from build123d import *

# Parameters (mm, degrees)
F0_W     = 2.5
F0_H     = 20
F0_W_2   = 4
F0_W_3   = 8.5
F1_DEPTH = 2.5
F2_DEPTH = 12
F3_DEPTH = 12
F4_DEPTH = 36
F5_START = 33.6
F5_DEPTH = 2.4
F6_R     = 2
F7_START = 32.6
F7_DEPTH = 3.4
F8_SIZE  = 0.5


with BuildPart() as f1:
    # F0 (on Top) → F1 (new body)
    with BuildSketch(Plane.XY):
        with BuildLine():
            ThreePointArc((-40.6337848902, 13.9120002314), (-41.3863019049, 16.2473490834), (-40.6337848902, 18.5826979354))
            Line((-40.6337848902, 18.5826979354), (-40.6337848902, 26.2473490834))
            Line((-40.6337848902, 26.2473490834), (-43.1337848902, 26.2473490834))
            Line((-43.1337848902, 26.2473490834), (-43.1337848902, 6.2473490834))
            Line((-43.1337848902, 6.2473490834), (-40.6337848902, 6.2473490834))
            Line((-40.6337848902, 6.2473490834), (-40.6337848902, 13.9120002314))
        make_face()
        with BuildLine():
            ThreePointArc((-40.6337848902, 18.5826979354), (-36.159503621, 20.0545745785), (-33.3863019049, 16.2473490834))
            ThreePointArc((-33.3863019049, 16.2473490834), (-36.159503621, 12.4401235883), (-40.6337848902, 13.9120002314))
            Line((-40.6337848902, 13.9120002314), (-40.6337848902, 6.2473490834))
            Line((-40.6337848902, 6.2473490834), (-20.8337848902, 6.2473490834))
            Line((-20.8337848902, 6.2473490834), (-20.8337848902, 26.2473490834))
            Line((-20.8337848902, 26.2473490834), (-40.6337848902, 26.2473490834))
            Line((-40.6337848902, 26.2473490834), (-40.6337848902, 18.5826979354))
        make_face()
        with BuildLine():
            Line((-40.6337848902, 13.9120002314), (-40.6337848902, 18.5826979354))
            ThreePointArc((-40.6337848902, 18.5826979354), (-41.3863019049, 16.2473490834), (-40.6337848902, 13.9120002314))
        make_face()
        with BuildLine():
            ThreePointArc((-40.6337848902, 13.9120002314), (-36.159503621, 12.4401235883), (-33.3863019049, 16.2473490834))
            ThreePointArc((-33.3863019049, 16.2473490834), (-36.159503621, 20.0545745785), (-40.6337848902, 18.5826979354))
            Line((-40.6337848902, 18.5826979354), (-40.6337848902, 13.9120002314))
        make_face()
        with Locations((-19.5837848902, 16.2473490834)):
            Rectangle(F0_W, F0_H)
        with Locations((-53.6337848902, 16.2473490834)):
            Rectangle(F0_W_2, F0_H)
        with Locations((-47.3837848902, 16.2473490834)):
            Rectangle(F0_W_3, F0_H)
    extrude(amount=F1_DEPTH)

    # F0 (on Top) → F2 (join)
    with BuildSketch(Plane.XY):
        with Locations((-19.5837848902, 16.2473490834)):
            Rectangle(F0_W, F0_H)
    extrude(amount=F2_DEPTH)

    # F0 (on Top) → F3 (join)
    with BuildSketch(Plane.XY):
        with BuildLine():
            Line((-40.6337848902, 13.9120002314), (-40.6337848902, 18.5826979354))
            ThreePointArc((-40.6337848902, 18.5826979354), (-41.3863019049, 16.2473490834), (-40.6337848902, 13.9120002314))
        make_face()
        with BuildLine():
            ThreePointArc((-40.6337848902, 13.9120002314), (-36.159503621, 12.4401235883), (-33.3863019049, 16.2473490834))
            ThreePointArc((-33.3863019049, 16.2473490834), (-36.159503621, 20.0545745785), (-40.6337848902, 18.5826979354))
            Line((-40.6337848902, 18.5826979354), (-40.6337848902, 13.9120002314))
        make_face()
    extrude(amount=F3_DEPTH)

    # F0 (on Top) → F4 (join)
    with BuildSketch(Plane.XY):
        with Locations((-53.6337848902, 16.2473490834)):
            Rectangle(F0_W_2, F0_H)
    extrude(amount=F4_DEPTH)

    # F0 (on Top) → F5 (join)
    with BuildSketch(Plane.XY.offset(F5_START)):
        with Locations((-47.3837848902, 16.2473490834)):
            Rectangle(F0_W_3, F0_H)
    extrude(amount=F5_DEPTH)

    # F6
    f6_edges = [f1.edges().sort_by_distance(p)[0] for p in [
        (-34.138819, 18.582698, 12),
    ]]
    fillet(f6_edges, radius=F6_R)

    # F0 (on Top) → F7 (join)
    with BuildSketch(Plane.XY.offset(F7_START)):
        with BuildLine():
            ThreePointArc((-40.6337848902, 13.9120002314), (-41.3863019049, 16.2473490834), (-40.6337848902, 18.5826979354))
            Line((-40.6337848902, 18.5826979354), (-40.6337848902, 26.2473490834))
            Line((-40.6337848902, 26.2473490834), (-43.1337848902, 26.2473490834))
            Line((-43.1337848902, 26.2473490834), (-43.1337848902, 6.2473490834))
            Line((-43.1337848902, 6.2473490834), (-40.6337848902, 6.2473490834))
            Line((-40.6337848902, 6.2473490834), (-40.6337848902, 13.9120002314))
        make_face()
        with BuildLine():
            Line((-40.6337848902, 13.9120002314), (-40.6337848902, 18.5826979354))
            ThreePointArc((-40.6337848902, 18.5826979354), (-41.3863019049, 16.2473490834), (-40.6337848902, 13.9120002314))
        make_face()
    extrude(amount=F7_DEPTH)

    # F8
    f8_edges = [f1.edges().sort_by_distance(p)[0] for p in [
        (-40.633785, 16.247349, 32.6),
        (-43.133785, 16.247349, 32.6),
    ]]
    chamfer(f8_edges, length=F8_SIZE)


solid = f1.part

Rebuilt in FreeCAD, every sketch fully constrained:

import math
import FreeCAD as App
import Part
import Sketcher

V = App.Vector
Q = App.Units.Quantity


def edges_at(feature, points):
    """Names of the edges that pass closest to the given points."""
    edges = feature.Shape.Edges
    near = lambda p: min(range(len(edges)), key=lambda i: edges[i].distToShape(Part.Vertex(*p))[0])
    return sorted({f"Edge{near(p) + 1}" for p in points})


def add_polygon(sketch, points):
    """Adds a closed chain of lines whose ends are joined by coincident constraints."""
    first, n = sketch.GeometryCount, len(points)
    for a, b in zip(points, points[1:] + points[:1]):
        sketch.addGeometry(Part.LineSegment(App.Vector(*a, 0), App.Vector(*b, 0)), False)
    for i in range(n):
        sketch.addConstraint(Sketcher.Constraint("Coincident", first + i, 2, first + (i + 1) % n, 1))

doc = App.newDocument("Part")
body = doc.addObject("PartDesign::Body", "Body")

# Sketch on XY plane
sketch1 = doc.addObject("Sketcher::SketchObject", "Sketch")
body.addObject(sketch1)
sketch1.AttachmentSupport = (doc.XY_Plane, [""])
sketch1.MapMode = "FlatFace"
add_polygon(sketch1, [(-18, 6), (-18, 26), (-56, 26), (-56, 6)])  # lines 0-3
sketch1.addConstraint([
    Sketcher.Constraint("Vertical", 0),
    Sketcher.Constraint("Horizontal", 1),
    Sketcher.Constraint("Vertical", 2),
    Sketcher.Constraint("Horizontal", 3),
    Sketcher.Constraint("DistanceY", 0, 1, 0, 2, Q("20 mm")),
    Sketcher.Constraint("DistanceX", 1, 2, 1, 1, Q("37.3 mm")),
    Sketcher.Constraint("DistanceY", -1, 1, 0, 2, Q("26.247349 mm")),
    Sketcher.Constraint("DistanceX", 0, 2, -1, 1, Q("18.333785 mm")),
])
pad1 = doc.addObject("PartDesign::Pad", "Pad")
body.addObject(pad1)
pad1.Profile = sketch1
pad1.Length = 2.5

# Sketch on XY plane
sketch2 = doc.addObject("Sketcher::SketchObject", "Sketch001")
body.addObject(sketch2)
sketch2.AttachmentSupport = (doc.XY_Plane, [""])
sketch2.MapMode = "FlatFace"
add_polygon(sketch2, [(-20.8, 26.2), (-20.8, 6.2), (-18.3, 6.2), (-18.3, 26.2)])  # lines 0-3
sketch2.addConstraint([
    Sketcher.Constraint("Vertical", 0),
    Sketcher.Constraint("Horizontal", 1),
    Sketcher.Constraint("Vertical", 2),
    Sketcher.Constraint("Horizontal", 3),
    Sketcher.Constraint("DistanceY", 0, 2, 0, 1, Q("20 mm")),
    Sketcher.Constraint("DistanceX", 1, 1, 1, 2, Q("2.5 mm")),
    Sketcher.Constraint("DistanceY", -1, 1, 0, 2, Q("6.247349 mm")),
    Sketcher.Constraint("DistanceX", 0, 2, -1, 1, Q("20.833785 mm")),
])
pad2 = doc.addObject("PartDesign::Pad", "Pad001")
body.addObject(pad2)
pad2.Profile = sketch2
pad2.Length = 12

# Sketch on XY plane
sketch3 = doc.addObject("Sketcher::SketchObject", "Sketch002")
body.addObject(sketch3)
sketch3.AttachmentSupport = (doc.XY_Plane, [""])
sketch3.MapMode = "FlatFace"
sketch3.addGeometry([
    Part.ArcOfCircle(Part.Circle(V(-37.4, 16.2, 0), V(0, 0, 1), 4), math.radians(144), math.radians(216)),
    Part.ArcOfCircle(Part.Circle(V(-37.4, 16.2, 0), V(0, 0, 1), 4), math.radians(-144), math.radians(0)),
    Part.ArcOfCircle(Part.Circle(V(-37.4, 16.2, 0), V(0, 0, 1), 4), math.radians(0), math.radians(144)),
], False)
sketch3.addConstraint([
    Sketcher.Constraint("Tangent", 0, 2, 1, 1),
    Sketcher.Constraint("Tangent", 1, 2, 2, 1),
    Sketcher.Constraint("Tangent", 2, 2, 0, 1),
    Sketcher.Constraint("Horizontal", 2, 3, 1, 2),
    Sketcher.Constraint("Vertical", 0, 2, 2, 2),
    Sketcher.Constraint("Radius", 0, Q("4 mm")),
    Sketcher.Constraint("DistanceY", -1, 1, 0, 2, Q("13.912 mm")),
    Sketcher.Constraint("DistanceX", 0, 3, -1, 1, Q("37.386302 mm")),
    Sketcher.Constraint("DistanceY", -1, 1, 0, 3, Q("16.247349 mm")),
])
pad3 = doc.addObject("PartDesign::Pad", "Pad002")
body.addObject(pad3)
pad3.Profile = sketch3
pad3.Length = 12

# Sketch on XY plane
sketch4 = doc.addObject("Sketcher::SketchObject", "Sketch003")
body.addObject(sketch4)
sketch4.AttachmentSupport = (doc.XY_Plane, [""])
sketch4.MapMode = "FlatFace"
add_polygon(sketch4, [(-55.6, 26.2), (-55.6, 6.2), (-51.6, 6.2), (-51.6, 26.2)])  # lines 0-3
sketch4.addConstraint([
    Sketcher.Constraint("Vertical", 0),
    Sketcher.Constraint("Horizontal", 1),
    Sketcher.Constraint("Vertical", 2),
    Sketcher.Constraint("Horizontal", 3),
    Sketcher.Constraint("DistanceX", 1, 1, 1, 2, Q("4 mm")),
    Sketcher.Constraint("DistanceY", 0, 2, 0, 1, Q("20 mm")),
    Sketcher.Constraint("DistanceY", -1, 1, 0, 2, Q("6.247349 mm")),
    Sketcher.Constraint("DistanceX", 0, 2, -1, 1, Q("55.633785 mm")),
])
pad4 = doc.addObject("PartDesign::Pad", "Pad003")
body.addObject(pad4)
pad4.Profile = sketch4
pad4.Length = 36

# Sketch on XY plane
sketch5 = doc.addObject("Sketcher::SketchObject", "Sketch004")
body.addObject(sketch5)
sketch5.AttachmentSupport = (doc.XY_Plane, [""])
sketch5.MapMode = "FlatFace"
sketch5.AttachmentOffset = App.Placement(V(0, 0, 33.6), App.Rotation())
add_polygon(sketch5, [(-52, 26), (-52, 6), (-43, 6), (-43, 26)])  # lines 0-3
sketch5.addConstraint([
    Sketcher.Constraint("Vertical", 0),
    Sketcher.Constraint("Horizontal", 1),
    Sketcher.Constraint("Vertical", 2),
    Sketcher.Constraint("Horizontal", 3),
    Sketcher.Constraint("DistanceY", 0, 2, 0, 1, Q("20 mm")),
    Sketcher.Constraint("DistanceX", 1, 1, 1, 2, Q("8.5 mm")),
    Sketcher.Constraint("DistanceY", -1, 1, 0, 2, Q("6.247349 mm")),
    Sketcher.Constraint("DistanceX", 0, 2, -1, 1, Q("51.633785 mm")),
])
pad5 = doc.addObject("PartDesign::Pad", "Pad004")
body.addObject(pad5)
pad5.Profile = sketch5
pad5.Length = 2.4
doc.recompute()

fillet = doc.addObject("PartDesign::Fillet", "Fillet")
body.addObject(fillet)
fillet.Base = (pad5, edges_at(pad5, [(-36.16, 20.055, 12)]))
fillet.Radius = 2

# Sketch on XY plane
sketch6 = doc.addObject("Sketcher::SketchObject", "Sketch005")
body.addObject(sketch6)
sketch6.AttachmentSupport = (doc.XY_Plane, [""])
sketch6.MapMode = "FlatFace"
sketch6.AttachmentOffset = App.Placement(V(0, 0, 32.6), App.Rotation())
add_polygon(sketch6, [(-40.6, 26.2), (-43.1, 26.2), (-43.1, 6.2), (-40.6, 6.2)])  # lines 0-3
sketch6.addConstraint([
    Sketcher.Constraint("Horizontal", 0),
    Sketcher.Constraint("Vertical", 1),
    Sketcher.Constraint("Horizontal", 2),
    Sketcher.Constraint("Vertical", 3),
    Sketcher.Constraint("DistanceY", 1, 2, 1, 1, Q("20 mm")),
    Sketcher.Constraint("DistanceX", 0, 2, 0, 1, Q("2.5 mm")),
    Sketcher.Constraint("DistanceY", -1, 1, 0, 2, Q("26.247349 mm")),
    Sketcher.Constraint("DistanceX", 0, 2, -1, 1, Q("43.133785 mm")),
])
pad6 = doc.addObject("PartDesign::Pad", "Pad005")
body.addObject(pad6)
pad6.Profile = sketch6
pad6.Length = 3.4
doc.recompute()

chamfer = doc.addObject("PartDesign::Chamfer", "Chamfer")
body.addObject(chamfer)
chamfer.Base = (pad6, edges_at(pad6, [(-40.634, 16.247, 32.6), (-43.134, 16.247, 32.6)]))
chamfer.Size = 0.5

doc.recompute()
